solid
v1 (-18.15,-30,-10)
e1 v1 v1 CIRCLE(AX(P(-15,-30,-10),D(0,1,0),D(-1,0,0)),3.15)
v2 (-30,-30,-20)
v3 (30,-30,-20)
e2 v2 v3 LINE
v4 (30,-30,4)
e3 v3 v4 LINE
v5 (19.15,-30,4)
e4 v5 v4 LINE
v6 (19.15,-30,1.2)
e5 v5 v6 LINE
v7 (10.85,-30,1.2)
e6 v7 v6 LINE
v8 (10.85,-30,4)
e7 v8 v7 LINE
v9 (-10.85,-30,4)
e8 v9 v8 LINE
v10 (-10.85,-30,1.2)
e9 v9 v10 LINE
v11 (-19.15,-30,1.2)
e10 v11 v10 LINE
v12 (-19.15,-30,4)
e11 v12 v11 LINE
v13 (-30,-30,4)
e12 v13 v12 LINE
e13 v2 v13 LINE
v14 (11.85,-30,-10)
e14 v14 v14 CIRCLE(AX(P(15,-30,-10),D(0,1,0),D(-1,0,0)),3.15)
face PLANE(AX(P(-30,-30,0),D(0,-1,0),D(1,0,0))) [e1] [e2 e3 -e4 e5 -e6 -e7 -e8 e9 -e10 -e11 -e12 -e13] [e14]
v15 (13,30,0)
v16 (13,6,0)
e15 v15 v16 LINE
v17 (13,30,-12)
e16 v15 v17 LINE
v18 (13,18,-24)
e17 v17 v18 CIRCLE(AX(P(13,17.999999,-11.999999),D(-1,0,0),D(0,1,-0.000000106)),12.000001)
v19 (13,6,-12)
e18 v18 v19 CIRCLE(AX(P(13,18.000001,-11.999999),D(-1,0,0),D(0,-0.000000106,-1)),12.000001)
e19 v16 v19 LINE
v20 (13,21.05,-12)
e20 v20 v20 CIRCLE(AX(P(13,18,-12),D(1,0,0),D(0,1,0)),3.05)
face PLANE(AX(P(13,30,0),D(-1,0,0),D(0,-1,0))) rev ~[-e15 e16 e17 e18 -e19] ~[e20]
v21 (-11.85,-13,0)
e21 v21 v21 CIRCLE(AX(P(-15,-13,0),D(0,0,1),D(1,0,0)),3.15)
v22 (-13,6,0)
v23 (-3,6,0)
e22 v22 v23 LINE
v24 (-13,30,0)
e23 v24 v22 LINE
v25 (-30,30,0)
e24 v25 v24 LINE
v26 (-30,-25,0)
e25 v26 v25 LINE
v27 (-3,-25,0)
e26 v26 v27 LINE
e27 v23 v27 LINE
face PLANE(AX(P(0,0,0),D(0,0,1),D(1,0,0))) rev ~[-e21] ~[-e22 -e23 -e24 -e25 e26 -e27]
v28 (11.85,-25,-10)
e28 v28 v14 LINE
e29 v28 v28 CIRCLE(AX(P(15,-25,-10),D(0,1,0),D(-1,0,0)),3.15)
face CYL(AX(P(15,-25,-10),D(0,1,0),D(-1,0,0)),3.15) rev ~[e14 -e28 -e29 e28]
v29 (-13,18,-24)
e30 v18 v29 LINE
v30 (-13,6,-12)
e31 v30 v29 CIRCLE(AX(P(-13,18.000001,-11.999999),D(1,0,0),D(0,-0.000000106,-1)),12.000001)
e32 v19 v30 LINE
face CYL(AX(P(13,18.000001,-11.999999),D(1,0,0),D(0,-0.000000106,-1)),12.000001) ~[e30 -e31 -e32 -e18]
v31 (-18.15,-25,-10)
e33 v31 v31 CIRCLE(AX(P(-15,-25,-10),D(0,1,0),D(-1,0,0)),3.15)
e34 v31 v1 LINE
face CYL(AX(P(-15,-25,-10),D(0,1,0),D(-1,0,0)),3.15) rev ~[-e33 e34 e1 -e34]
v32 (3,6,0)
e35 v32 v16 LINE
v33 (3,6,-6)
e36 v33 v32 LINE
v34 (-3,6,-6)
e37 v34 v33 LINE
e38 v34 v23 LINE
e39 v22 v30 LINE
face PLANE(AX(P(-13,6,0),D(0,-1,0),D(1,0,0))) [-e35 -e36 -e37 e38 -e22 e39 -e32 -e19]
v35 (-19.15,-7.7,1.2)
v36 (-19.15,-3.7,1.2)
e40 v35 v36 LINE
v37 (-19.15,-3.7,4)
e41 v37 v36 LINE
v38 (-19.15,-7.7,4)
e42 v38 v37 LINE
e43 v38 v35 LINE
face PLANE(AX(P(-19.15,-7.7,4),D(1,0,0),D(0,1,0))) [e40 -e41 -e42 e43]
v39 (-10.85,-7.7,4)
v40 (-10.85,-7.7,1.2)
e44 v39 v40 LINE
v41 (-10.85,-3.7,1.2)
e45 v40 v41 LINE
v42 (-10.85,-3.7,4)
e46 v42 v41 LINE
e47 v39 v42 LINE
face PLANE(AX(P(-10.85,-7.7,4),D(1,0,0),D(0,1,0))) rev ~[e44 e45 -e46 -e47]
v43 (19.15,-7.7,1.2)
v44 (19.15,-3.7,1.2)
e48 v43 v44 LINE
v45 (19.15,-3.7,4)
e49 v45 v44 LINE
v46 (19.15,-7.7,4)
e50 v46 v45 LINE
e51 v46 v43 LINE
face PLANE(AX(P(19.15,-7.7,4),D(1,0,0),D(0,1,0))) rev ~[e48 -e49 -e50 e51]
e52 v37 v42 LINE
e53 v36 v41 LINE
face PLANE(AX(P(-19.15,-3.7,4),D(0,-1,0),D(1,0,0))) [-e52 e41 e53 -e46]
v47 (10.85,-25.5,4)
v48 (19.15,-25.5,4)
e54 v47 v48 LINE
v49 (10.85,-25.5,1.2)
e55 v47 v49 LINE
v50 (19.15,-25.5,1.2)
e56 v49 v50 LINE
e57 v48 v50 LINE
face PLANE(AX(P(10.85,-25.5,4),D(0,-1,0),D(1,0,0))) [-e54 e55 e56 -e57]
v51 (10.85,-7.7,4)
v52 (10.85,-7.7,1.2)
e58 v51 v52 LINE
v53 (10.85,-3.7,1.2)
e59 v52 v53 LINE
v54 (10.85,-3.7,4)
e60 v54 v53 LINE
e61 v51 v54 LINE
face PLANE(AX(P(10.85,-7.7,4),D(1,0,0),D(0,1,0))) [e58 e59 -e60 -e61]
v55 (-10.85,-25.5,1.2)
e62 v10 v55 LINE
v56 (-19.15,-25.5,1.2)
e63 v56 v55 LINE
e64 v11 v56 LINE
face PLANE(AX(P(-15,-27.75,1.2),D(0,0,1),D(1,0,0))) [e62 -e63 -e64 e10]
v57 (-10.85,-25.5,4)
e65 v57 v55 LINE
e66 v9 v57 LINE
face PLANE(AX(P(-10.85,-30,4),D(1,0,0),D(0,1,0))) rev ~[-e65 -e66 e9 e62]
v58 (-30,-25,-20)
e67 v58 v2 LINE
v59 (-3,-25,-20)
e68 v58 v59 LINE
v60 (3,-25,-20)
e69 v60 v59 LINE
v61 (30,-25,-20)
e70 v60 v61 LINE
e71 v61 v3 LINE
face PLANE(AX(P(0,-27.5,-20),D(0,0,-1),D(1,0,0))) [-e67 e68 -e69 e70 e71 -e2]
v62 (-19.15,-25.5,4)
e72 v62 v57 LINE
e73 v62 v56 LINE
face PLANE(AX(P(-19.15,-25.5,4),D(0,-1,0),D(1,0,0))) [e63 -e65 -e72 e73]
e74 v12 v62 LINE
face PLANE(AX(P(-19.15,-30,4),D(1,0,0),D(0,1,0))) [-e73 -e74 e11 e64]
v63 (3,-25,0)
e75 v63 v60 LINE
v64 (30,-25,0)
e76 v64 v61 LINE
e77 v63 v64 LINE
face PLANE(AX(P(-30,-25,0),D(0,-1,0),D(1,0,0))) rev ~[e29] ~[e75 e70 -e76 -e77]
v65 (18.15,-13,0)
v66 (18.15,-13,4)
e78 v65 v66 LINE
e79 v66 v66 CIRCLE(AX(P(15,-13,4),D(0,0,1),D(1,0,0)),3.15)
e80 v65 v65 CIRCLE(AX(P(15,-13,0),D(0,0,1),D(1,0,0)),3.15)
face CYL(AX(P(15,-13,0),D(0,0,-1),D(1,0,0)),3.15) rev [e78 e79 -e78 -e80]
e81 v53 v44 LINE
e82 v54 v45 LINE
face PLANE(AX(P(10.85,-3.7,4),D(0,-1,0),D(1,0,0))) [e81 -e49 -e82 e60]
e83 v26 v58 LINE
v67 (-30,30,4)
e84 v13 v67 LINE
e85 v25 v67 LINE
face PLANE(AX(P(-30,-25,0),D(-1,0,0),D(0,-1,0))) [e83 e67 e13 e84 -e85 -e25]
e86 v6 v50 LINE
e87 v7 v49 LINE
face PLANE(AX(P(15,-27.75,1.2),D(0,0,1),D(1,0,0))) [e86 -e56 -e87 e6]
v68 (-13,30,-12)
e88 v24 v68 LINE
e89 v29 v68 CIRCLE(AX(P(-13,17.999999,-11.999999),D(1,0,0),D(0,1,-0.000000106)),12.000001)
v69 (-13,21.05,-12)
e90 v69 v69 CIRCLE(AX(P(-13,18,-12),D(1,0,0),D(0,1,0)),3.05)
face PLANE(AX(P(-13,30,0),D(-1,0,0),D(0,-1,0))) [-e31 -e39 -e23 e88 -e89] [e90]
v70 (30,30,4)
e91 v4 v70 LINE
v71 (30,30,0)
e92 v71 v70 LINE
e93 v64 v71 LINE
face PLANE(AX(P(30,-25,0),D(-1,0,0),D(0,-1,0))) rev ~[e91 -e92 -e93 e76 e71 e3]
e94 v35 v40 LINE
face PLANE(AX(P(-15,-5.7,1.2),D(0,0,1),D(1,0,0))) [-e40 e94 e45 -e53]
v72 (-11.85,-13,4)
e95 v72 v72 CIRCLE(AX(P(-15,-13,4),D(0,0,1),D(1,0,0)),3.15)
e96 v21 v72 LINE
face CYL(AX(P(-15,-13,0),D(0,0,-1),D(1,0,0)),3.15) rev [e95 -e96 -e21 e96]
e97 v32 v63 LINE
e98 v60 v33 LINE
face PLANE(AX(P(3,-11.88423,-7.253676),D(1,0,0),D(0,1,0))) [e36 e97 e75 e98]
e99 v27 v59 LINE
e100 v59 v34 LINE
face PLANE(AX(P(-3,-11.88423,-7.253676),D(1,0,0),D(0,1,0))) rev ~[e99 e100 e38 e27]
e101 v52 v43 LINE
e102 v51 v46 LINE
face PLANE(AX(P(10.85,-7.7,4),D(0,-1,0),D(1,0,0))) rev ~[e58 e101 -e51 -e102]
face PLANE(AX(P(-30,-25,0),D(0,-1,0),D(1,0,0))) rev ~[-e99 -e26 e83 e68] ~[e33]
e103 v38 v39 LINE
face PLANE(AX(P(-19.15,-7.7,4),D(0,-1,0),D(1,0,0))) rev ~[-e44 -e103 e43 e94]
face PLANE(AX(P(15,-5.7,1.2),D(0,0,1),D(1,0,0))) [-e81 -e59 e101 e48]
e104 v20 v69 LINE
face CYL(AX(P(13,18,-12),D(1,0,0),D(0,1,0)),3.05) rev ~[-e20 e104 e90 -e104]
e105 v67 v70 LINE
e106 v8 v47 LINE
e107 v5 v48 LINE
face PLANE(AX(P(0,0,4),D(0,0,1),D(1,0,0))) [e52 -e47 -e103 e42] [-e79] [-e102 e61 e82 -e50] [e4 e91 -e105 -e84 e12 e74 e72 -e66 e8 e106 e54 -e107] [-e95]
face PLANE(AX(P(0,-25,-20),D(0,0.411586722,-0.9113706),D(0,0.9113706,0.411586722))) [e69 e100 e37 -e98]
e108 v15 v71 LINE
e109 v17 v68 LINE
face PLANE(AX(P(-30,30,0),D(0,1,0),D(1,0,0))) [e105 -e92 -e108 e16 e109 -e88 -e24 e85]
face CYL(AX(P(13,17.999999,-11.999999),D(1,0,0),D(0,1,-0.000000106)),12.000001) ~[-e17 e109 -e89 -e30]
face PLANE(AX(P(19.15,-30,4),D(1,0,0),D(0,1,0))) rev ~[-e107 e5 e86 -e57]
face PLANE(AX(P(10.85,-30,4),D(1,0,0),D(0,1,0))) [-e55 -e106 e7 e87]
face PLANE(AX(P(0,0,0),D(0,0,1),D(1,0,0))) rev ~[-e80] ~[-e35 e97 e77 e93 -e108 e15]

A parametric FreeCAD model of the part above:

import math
import FreeCAD as App
import Part
import Sketcher

V = App.Vector
Q = App.Units.Quantity

doc = App.newDocument("Part")
params = doc.addObject("Spreadsheet::Sheet", "Params")
for row, (alias, value) in enumerate([
    ("sketch1_diameter", "6.3 mm"),
    ("sketch1_width", "60 mm"),
    ("pad1_length", "4 mm"),
    ("sketch2_height", "4 mm"),
    ("sketch2_width", "8.3 mm"),
    ("sketch2_height2", "4.5 mm"),
    ("pocket1_length", "2.8 mm"),
    ("sketch3_width", "26 mm"),
    ("sketch3_height", "24 mm"),
    ("pad2_length", "24 mm"),
    ("sketch4_radius", "12.000001 mm"),
    ("sketch4_diameter", "6.1 mm"),
    ("sketch5_width", "60 mm"),
    ("sketch5_height", "5 mm"),
    ("pad3_length", "20 mm"),
    ("sketch6_width", "31 mm"),
    ("sketch6_height", "20 mm"),
    ("sketch6_height2", "6 mm"),
    ("pad4_length", "3 mm"),
    ("pad4_length2", "3 mm"),
    ("sketch7_diameter", "6.3 mm"),
], start=1):
    params.set(f"A{row}", alias)
    params.set(f"B{row}", "=" + value)
    params.setAlias(f"B{row}", alias)

body = doc.addObject("PartDesign::Body", "Body")

# Sketch on XY plane
sketch1 = body.newObject("Sketcher::SketchObject", "Sketch")
sketch1.AttachmentSupport = (doc.getObject("XY_Plane"), [""])
sketch1.MapMode = "FlatFace"
sketch1.addGeometry([
    Part.LineSegment(V(-30, 30, 0), V(-30, -30, 0)),  # 0
    Part.LineSegment(V(-30, -30, 0), V(30, -30, 0)),  # 1
    Part.LineSegment(V(30, -30, 0), V(30, 30, 0)),  # 2
    Part.LineSegment(V(30, 30, 0), V(-30, 30, 0)),  # 3
    Part.Circle(V(-15, -13, 0), V(0, 0, 1), 3.15),  # 4
    Part.Circle(V(15, -13, 0), V(0, 0, 1), 3.15),  # 5
], False)
sketch1.addConstraint([
    Sketcher.Constraint("Coincident", 0, 2, 1, 1),
    Sketcher.Constraint("Coincident", 1, 2, 2, 1),
    Sketcher.Constraint("Coincident", 2, 2, 3, 1),
    Sketcher.Constraint("Coincident", 3, 2, 0, 1),
    Sketcher.Constraint("Vertical", 0),
    Sketcher.Constraint("Horizontal", 1),
    Sketcher.Constraint("Vertical", 2),
    Sketcher.Constraint("Horizontal", 3),
    Sketcher.Constraint("Equal", 4, 5),
    Sketcher.Constraint("Symmetric", 0, 2, 2, 2, -1, 1),
    Sketcher.Constraint("Symmetric", 4, 3, 5, 3, -2),
    Sketcher.Constraint("Equal", 3, 0),
    Sketcher.Constraint("Diameter", 4, Q("6.3 mm")),
    Sketcher.Constraint("DistanceX", 1, 1, 1, 2, Q("60 mm")),
    Sketcher.Constraint("DistanceX", 4, 3, -1, 1, Q("15 mm")),
    Sketcher.Constraint("DistanceY", 4, 3, -1, 1, Q("13 mm")),
])
sketch1.setExpression("Constraints[12]", "Params.sketch1_diameter")
sketch1.setExpression("Constraints[13]", "Params.sketch1_width")
pad1 = body.newObject("PartDesign::Pad", "Pad")
pad1.Profile = sketch1
pad1.setExpression("Length", "Params.pad1_length")

# Sketch on XY plane
sketch2 = body.newObject("Sketcher::SketchObject", "Sketch001")
sketch2.AttachmentSupport = (doc.getObject("XY_Plane"), [""])
sketch2.MapMode = "FlatFace"
sketch2.AttachmentOffset = App.Placement(V(0, 0, 4), App.Rotation())
sketch2.addGeometry([
    Part.LineSegment(V(-19.15, -25.5, 0), V(-19.15, -30, 0)),  # 0
    Part.LineSegment(V(-19.15, -30, 0), V(-10.85, -30, 0)),  # 1
    Part.LineSegment(V(-10.85, -30, 0), V(-10.85, -25.5, 0)),  # 2
    Part.LineSegment(V(-10.85, -25.5, 0), V(-19.15, -25.5, 0)),  # 3
    Part.LineSegment(V(10.85, -25.5, 0), V(10.85, -30, 0)),  # 4
    Part.LineSegment(V(10.85, -30, 0), V(19.15, -30, 0)),  # 5
    Part.LineSegment(V(19.15, -30, 0), V(19.15, -25.5, 0)),  # 6
    Part.LineSegment(V(19.15, -25.5, 0), V(10.85, -25.5, 0)),  # 7
    Part.LineSegment(V(-19.15, -3.7, 0), V(-19.15, -7.7, 0)),  # 8
    Part.LineSegment(V(-19.15, -7.7, 0), V(-10.85, -7.7, 0)),  # 9
    Part.LineSegment(V(-10.85, -7.7, 0), V(-10.85, -3.7, 0)),  # 10
    Part.LineSegment(V(-10.85, -3.7, 0), V(-19.15, -3.7, 0)),  # 11
    Part.LineSegment(V(10.85, -3.7, 0), V(10.85, -7.7, 0)),  # 12
    Part.LineSegment(V(10.85, -7.7, 0), V(19.15, -7.7, 0)),  # 13
    Part.LineSegment(V(19.15, -7.7, 0), V(19.15, -3.7, 0)),  # 14
    Part.LineSegment(V(19.15, -3.7, 0), V(10.85, -3.7, 0)),  # 15
], False)
sketch2.addConstraint([
    Sketcher.Constraint("Coincident", 0, 2, 1, 1),
    Sketcher.Constraint("Coincident", 1, 2, 2, 1),
    Sketcher.Constraint("Coincident", 2, 2, 3, 1),
    Sketcher.Constraint("Coincident", 3, 2, 0, 1),
    Sketcher.Constraint("Coincident", 4, 2, 5, 1),
    Sketcher.Constraint("Coincident", 5, 2, 6, 1),
    Sketcher.Constraint("Coincident", 6, 2, 7, 1),
    Sketcher.Constraint("Coincident", 7, 2, 4, 1),
    Sketcher.Constraint("Coincident", 8, 2, 9, 1),
    Sketcher.Constraint("Coincident", 9, 2, 10, 1),
    Sketcher.Constraint("Coincident", 10, 2, 11, 1),
    Sketcher.Constraint("Coincident", 11, 2, 8, 1),
    Sketcher.Constraint("Coincident", 12, 2, 13, 1),
    Sketcher.Constraint("Coincident", 13, 2, 14, 1),
    Sketcher.Constraint("Coincident", 14, 2, 15, 1),
    Sketcher.Constraint("Coincident", 15, 2, 12, 1),
    Sketcher.Constraint("Vertical", 0),
    Sketcher.Constraint("Horizontal", 1),
    Sketcher.Constraint("Vertical", 2),
    Sketcher.Constraint("Horizontal", 3),
    Sketcher.Constraint("Vertical", 4),
    Sketcher.Constraint("Horizontal", 5),
    Sketcher.Constraint("Vertical", 6),
    Sketcher.Constraint("Horizontal", 7),
    Sketcher.Constraint("Vertical", 8),
    Sketcher.Constraint("Horizontal", 9),
    Sketcher.Constraint("Vertical", 10),
    Sketcher.Constraint("Horizontal", 11),
    Sketcher.Constraint("Vertical", 12),
    Sketcher.Constraint("Horizontal", 13),
    Sketcher.Constraint("Vertical", 14),
    Sketcher.Constraint("Horizontal", 15),
    Sketcher.Constraint("Symmetric", 1, 2, 4, 2, -2),
    Sketcher.Constraint("Symmetric", 3, 2, 6, 2, -2),
    Sketcher.Constraint("Symmetric", 9, 2, 12, 2, -2),
    Sketcher.Constraint("Symmetric", 11, 2, 14, 2, -2),
    Sketcher.Constraint("Vertical", 3, 2, 8, 2),
    Sketcher.Constraint("Vertical", 2, 2, 9, 2),
    Sketcher.Constraint("DistanceY", 8, 2, 8, 1, Q("4 mm")),
    Sketcher.Constraint("DistanceX", 1, 1, 1, 2, Q("8.3 mm")),
    Sketcher.Constraint("DistanceY", 0, 2, 0, 1, Q("4.5 mm")),
    Sketcher.Constraint("DistanceY", 0, 2, -1, 1, Q("30 mm")),
    Sketcher.Constraint("DistanceX", 0, 2, 4, 2, Q("30 mm")),
    Sketcher.Constraint("DistanceY", 8, 2, -1, 1, Q("7.7 mm")),
])
sketch2.setExpression("Constraints[38]", "Params.sketch2_height")
sketch2.setExpression("Constraints[39]", "Params.sketch2_width")
sketch2.setExpression("Constraints[40]", "Params.sketch2_height2")
pocket1 = body.newObject("PartDesign::Pocket", "Pocket")
pocket1.Profile = sketch2
pocket1.setExpression("Length", "Params.pocket1_length")

# Sketch on XY plane
sketch3 = body.newObject("Sketcher::SketchObject", "Sketch002")
sketch3.AttachmentSupport = (doc.getObject("XY_Plane"), [""])
sketch3.MapMode = "FlatFace"
sketch3.addGeometry([
    Part.LineSegment(V(-13, 6, 0), V(-13, 30, 0)),
    Part.LineSegment(V(-13, 30, 0), V(13, 30, 0)),
    Part.LineSegment(V(13, 30, 0), V(13, 6, 0)),
    Part.LineSegment(V(13, 6, 0), V(-13, 6, 0)),
], False)
sketch3.addConstraint([
    Sketcher.Constraint("Coincident", 0, 2, 1, 1),
    Sketcher.Constraint("Coincident", 1, 2, 2, 1),
    Sketcher.Constraint("Coincident", 2, 2, 3, 1),
    Sketcher.Constraint("Coincident", 3, 2, 0, 1),
    Sketcher.Constraint("Vertical", 0),
    Sketcher.Constraint("Horizontal", 1),
    Sketcher.Constraint("Vertical", 2),
    Sketcher.Constraint("Horizontal", 3),
    Sketcher.Constraint("DistanceX", 1, 1, 1, 2, Q("26 mm")),
    Sketcher.Constraint("DistanceY", 0, 1, 0, 2, Q("24 mm")),
    Sketcher.Constraint("DistanceX", 0, 2, -1, 1, Q("13 mm")),
    Sketcher.Constraint("DistanceY", -1, 1, 0, 2, Q("30 mm")),
])
sketch3.setExpression("Constraints[8]", "Params.sketch3_width")
sketch3.setExpression("Constraints[9]", "Params.sketch3_height")
pad2 = body.newObject("PartDesign::Pad", "Pad001")
pad2.Profile = sketch3
pad2.setExpression("Length", "Params.pad2_length")
pad2.Reversed = True

# Sketch on YZ plane
sketch4 = body.newObject("Sketcher::SketchObject", "Sketch003")
sketch4.AttachmentSupport = (doc.getObject("YZ_Plane"), [""])
sketch4.MapMode = "FlatFace"
sketch4.AttachmentOffset = App.Placement(V(0, 0, 13), App.Rotation())
sketch4.addGeometry([
    Part.ArcOfCircle(Part.Circle(V(17.999999, -11.999999, 0), V(0, 0, 1), 12.000001), math.radians(-89.999994), math.radians(-0.000006)),  # 0
    Part.LineSegment(V(18, -24, 0), V(30, -24, 0)),  # 1
    Part.LineSegment(V(30, -24, 0), V(30, -12, 0)),  # 2
    Part.ArcOfCircle(Part.Circle(V(18.000001, -11.999999, 0), V(0, 0, 1), 12.000001), math.radians(-179.999994), math.radians(-90.000006)),  # 3
    Part.LineSegment(V(6, -12, 0), V(6, -24, 0)),  # 4
    Part.LineSegment(V(6, -24, 0), V(18, -24, 0)),  # 5
    Part.Circle(V(18, -12, 0), V(0, 0, 1), 3.05),  # 6
], False)
sketch4.addConstraint([
    Sketcher.Constraint("Tangent", 0, 1, 1, 1),
    Sketcher.Constraint("Coincident", 1, 2, 2, 1),
    Sketcher.Constraint("Tangent", 2, 2, 0, 2),
    Sketcher.Constraint("Tangent", 3, 1, 4, 1),
    Sketcher.Constraint("Coincident", 4, 2, 5, 1),
    Sketcher.Constraint("Tangent", 5, 2, 3, 2),
    Sketcher.Constraint("Horizontal", 1),
    Sketcher.Constraint("Vertical", 2),
    Sketcher.Constraint("Vertical", 4),
    Sketcher.Constraint("Horizontal", 5),
    Sketcher.Constraint("Coincident", 3, 3, 0, 3),
    Sketcher.Constraint("Coincident", 6, 3, 0, 3),
    Sketcher.Constraint("Equal", 0, 3),
    Sketcher.Constraint("Radius", 0, Q("12.000001 mm")),
    Sketcher.Constraint("Diameter", 6, Q("6.1 mm")),
    Sketcher.Constraint("DistanceX", -1, 1, 0, 3, Q("17.999999 mm")),
    Sketcher.Constraint("DistanceY", 0, 3, -1, 1, Q("11.999999 mm")),
])
sketch4.setExpression("Constraints[13]", "Params.sketch4_radius")
sketch4.setExpression("Constraints[14]", "Params.sketch4_diameter")
pocket2 = body.newObject("PartDesign::Pocket", "Pocket001")
pocket2.Profile = sketch4
pocket2.Type = "ThroughAll"

# Sketch on XY plane
sketch5 = body.newObject("Sketcher::SketchObject", "Sketch004")
sketch5.AttachmentSupport = (doc.getObject("XY_Plane"), [""])
sketch5.MapMode = "FlatFace"
sketch5.addGeometry([
    Part.LineSegment(V(-30, -30, 0), V(-30, -25, 0)),
    Part.LineSegment(V(-30, -25, 0), V(30, -25, 0)),
    Part.LineSegment(V(30, -25, 0), V(30, -30, 0)),
    Part.LineSegment(V(30, -30, 0), V(-30, -30, 0)),
], False)
sketch5.addConstraint([
    Sketcher.Constraint("Coincident", 0, 2, 1, 1),
    Sketcher.Constraint("Coincident", 1, 2, 2, 1),
    Sketcher.Constraint("Coincident", 2, 2, 3, 1),
    Sketcher.Constraint("Coincident", 3, 2, 0, 1),
    Sketcher.Constraint("Vertical", 0),
    Sketcher.Constraint("Horizontal", 1),
    Sketcher.Constraint("Vertical", 2),
    Sketcher.Constraint("Horizontal", 3),
    Sketcher.Constraint("DistanceX", 1, 1, 1, 2, Q("60 mm")),
    Sketcher.Constraint("DistanceY", 0, 1, 0, 2, Q("5 mm")),
    Sketcher.Constraint("DistanceX", 0, 2, -1, 1, Q("30 mm")),
    Sketcher.Constraint("DistanceY", 0, 2, -1, 1, Q("25 mm")),
])
sketch5.setExpression("Constraints[8]", "Params.sketch5_width")
sketch5.setExpression("Constraints[9]", "Params.sketch5_height")
pad3 = body.newObject("PartDesign::Pad", "Pad002")
pad3.Profile = sketch5
pad3.setExpression("Length", "Params.pad3_length")
pad3.Reversed = True

# Sketch on YZ plane
sketch6 = body.newObject("Sketcher::SketchObject", "Sketch005")
sketch6.AttachmentSupport = (doc.getObject("YZ_Plane"), [""])
sketch6.MapMode = "FlatFace"
sketch6.addGeometry([
    Part.LineSegment(V(-25, 0, 0), V(-25, -20, 0)),
    Part.LineSegment(V(-25, -20, 0), V(6, -6, 0)),
    Part.LineSegment(V(6, -6, 0), V(6, 0, 0)),
    Part.LineSegment(V(6, 0, 0), V(-25, 0, 0)),
], False)
sketch6.addConstraint([
    Sketcher.Constraint("Coincident", 0, 2, 1, 1),
    Sketcher.Constraint("Coincident", 1, 2, 2, 1),
    Sketcher.Constraint("Coincident", 2, 2, 3, 1),
    Sketcher.Constraint("Coincident", 3, 2, 0, 1),
    Sketcher.Constraint("Vertical", 0),
    Sketcher.Constraint("Vertical", 2),
    Sketcher.Constraint("Horizontal", 3),
    Sketcher.Constraint("PointOnObject", 2, 2, -1),
    Sketcher.Constraint("DistanceX", 3, 2, 3, 1, Q("31 mm")),
    Sketcher.Constraint("DistanceY", 0, 2, 0, 1, Q("20 mm")),
    Sketcher.Constraint("DistanceY", 2, 1, 2, 2, Q("6 mm")),
    Sketcher.Constraint("DistanceX", 0, 2, -1, 1, Q("25 mm")),
])
sketch6.setExpression("Constraints[8]", "Params.sketch6_width")
sketch6.setExpression("Constraints[9]", "Params.sketch6_height")
sketch6.setExpression("Constraints[10]", "Params.sketch6_height2")
pad4 = body.newObject("PartDesign::Pad", "Pad003")
pad4.Profile = sketch6
pad4.Type = "TwoLengths"
pad4.setExpression("Length", "Params.pad4_length")
pad4.setExpression("Length2", "Params.pad4_length2")

# Sketch on XZ plane
sketch7 = body.newObject("Sketcher::SketchObject", "Sketch006")
sketch7.AttachmentSupport = (doc.getObject("XZ_Plane"), [""])
sketch7.MapMode = "FlatFace"
sketch7.AttachmentOffset = App.Placement(V(0, 0, 25), App.Rotation())
sketch7.addGeometry([
    Part.Circle(V(-15, -10, 0), V(0, 0, 1), 3.15),
    Part.Circle(V(15, -10, 0), V(0, 0, 1), 3.15),
], False)
sketch7.addConstraint([
    Sketcher.Constraint("Equal", 0, 1),
    Sketcher.Constraint("Symmetric", 0, 3, 1, 3, -2),
    Sketcher.Constraint("Diameter", 0, Q("6.3 mm")),
    Sketcher.Constraint("DistanceX", 0, 3, -1, 1, Q("15 mm")),
    Sketcher.Constraint("DistanceY", 0, 3, -1, 1, Q("10 mm")),
])
sketch7.setExpression("Constraints[2]", "Params.sketch7_diameter")
pocket3 = body.newObject("PartDesign::Pocket", "Pocket002")
pocket3.Profile = sketch7
pocket3.Type = "ThroughAll"
pocket3.Reversed = True

doc.recompute()
